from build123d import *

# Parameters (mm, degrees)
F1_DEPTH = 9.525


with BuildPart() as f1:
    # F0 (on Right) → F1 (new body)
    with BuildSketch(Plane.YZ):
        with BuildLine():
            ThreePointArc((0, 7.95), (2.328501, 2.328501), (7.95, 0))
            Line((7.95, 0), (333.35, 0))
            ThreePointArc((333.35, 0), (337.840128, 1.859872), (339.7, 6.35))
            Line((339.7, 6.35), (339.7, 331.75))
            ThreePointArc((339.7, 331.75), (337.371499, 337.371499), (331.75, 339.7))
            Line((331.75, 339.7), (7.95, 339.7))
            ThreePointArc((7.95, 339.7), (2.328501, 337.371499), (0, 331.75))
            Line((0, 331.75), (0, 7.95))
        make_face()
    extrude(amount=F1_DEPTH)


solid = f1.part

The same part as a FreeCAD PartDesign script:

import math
import FreeCAD as App
import Part
import Sketcher
Q = App.Units.Quantity

doc = App.newDocument("Part")
params = doc.addObject("Spreadsheet::Sheet", "Params")
for row, (alias, value) in enumerate([
    ("sketch1_radius", "7.95 mm"),
    ("sketch1_radius2", "6.35 mm"),
    ("sketch1_width", "325.4 mm"),
    ("pad1_length", "9.525 mm"),
], start=1):
    params.set(f"A{row}", alias)
    params.set(f"B{row}", "=" + value)
    params.setAlias(f"B{row}", alias)

body = doc.addObject("PartDesign::Body", "Body")

# Sketch on YZ plane
sketch1 = body.newObject("Sketcher::SketchObject", "Sketch")
sketch1.AttachmentSupport = (doc.getObject("YZ_Plane"), [""])
sketch1.MapMode = "FlatFace"
sketch1.addGeometry(Part.ArcOfCircle(Part.Circle(App.Vector(7.95, 7.95, 0), App.Vector(0, 0, 1), 7.95), math.radians(179.999998), math.radians(270.000002)), False)
sketch1.addGeometry(Part.LineSegment(App.Vector(7.95, 0, 0), App.Vector(333.35, 0, 0)), False)
sketch1.addGeometry(Part.ArcOfCircle(Part.Circle(App.Vector(333.35, 6.35, 0), App.Vector(0, 0, 1), 6.35), math.radians(-89.999998), math.radians(-0.000002)), False)
sketch1.addGeometry(Part.LineSegment(App.Vector(339.7, 6.35, 0), App.Vector(339.7, 331.75, 0)), False)
sketch1.addGeometry(Part.ArcOfCircle(Part.Circle(App.Vector(331.75, 331.75, 0), App.Vector(0, 0, 1), 7.95), math.radians(-0.000002), math.radians(90.000002)), False)
sketch1.addGeometry(Part.LineSegment(App.Vector(331.75, 339.7, 0), App.Vector(7.95, 339.7, 0)), False)
sketch1.addGeometry(Part.ArcOfCircle(Part.Circle(App.Vector(7.95, 331.75, 0), App.Vector(0, 0, 1), 7.95), math.radians(89.999998), math.radians(180.000002)), False)
sketch1.addGeometry(Part.LineSegment(App.Vector(0, 331.75, 0), App.Vector(0, 7.95, 0)), False)
sketch1.addConstraint(Sketcher.Constraint("Tangent", 0, 2, 1, 1))
sketch1.addConstraint(Sketcher.Constraint("Tangent", 1, 2, 2, 1))
sketch1.addConstraint(Sketcher.Constraint("Tangent", 2, 2, 3, 1))
sketch1.addConstraint(Sketcher.Constraint("Tangent", 3, 2, 4, 1))
sketch1.addConstraint(Sketcher.Constraint("Tangent", 4, 2, 5, 1))
sketch1.addConstraint(Sketcher.Constraint("Tangent", 5, 2, 6, 1))
sketch1.addConstraint(Sketcher.Constraint("Tangent", 6, 2, 7, 1))
sketch1.addConstraint(Sketcher.Constraint("Tangent", 7, 2, 0, 1))
sketch1.addConstraint(Sketcher.Constraint("Horizontal", 1))
sketch1.addConstraint(Sketcher.Constraint("Vertical", 3))
sketch1.addConstraint(Sketcher.Constraint("Horizontal", 5))
sketch1.addConstraint(Sketcher.Constraint("Vertical", 7))
sketch1.addConstraint(Sketcher.Constraint("Equal", 0, 4))
sketch1.addConstraint(Sketcher.Constraint("Equal", 4, 6))
sketch1.addConstraint(Sketcher.Constraint("PointOnObject", 0, 2, -1))
sketch1.addConstraint(Sketcher.Constraint("PointOnObject", 6, 2, -2))
sketch1.addConstraint(Sketcher.Constraint("Equal", 1, 3))
sketch1.addConstraint(Sketcher.Constraint("Radius", 0, Q("7.95 mm")))
sketch1.addConstraint(Sketcher.Constraint("Radius", 2, Q("6.35 mm")))
sketch1.addConstraint(Sketcher.Constraint("DistanceX", 1, 1, 1, 2, Q("325.4 mm")))
sketch1.setExpression("Constraints[17]", "Params.sketch1_radius")
sketch1.setExpression("Constraints[18]", "Params.sketch1_radius2")
sketch1.setExpression("Constraints[19]", "Params.sketch1_width")
pad1 = body.newObject("PartDesign::Pad", "Pad")
pad1.Profile = sketch1
pad1.setExpression("Length", "Params.pad1_length")

doc.recompute()
